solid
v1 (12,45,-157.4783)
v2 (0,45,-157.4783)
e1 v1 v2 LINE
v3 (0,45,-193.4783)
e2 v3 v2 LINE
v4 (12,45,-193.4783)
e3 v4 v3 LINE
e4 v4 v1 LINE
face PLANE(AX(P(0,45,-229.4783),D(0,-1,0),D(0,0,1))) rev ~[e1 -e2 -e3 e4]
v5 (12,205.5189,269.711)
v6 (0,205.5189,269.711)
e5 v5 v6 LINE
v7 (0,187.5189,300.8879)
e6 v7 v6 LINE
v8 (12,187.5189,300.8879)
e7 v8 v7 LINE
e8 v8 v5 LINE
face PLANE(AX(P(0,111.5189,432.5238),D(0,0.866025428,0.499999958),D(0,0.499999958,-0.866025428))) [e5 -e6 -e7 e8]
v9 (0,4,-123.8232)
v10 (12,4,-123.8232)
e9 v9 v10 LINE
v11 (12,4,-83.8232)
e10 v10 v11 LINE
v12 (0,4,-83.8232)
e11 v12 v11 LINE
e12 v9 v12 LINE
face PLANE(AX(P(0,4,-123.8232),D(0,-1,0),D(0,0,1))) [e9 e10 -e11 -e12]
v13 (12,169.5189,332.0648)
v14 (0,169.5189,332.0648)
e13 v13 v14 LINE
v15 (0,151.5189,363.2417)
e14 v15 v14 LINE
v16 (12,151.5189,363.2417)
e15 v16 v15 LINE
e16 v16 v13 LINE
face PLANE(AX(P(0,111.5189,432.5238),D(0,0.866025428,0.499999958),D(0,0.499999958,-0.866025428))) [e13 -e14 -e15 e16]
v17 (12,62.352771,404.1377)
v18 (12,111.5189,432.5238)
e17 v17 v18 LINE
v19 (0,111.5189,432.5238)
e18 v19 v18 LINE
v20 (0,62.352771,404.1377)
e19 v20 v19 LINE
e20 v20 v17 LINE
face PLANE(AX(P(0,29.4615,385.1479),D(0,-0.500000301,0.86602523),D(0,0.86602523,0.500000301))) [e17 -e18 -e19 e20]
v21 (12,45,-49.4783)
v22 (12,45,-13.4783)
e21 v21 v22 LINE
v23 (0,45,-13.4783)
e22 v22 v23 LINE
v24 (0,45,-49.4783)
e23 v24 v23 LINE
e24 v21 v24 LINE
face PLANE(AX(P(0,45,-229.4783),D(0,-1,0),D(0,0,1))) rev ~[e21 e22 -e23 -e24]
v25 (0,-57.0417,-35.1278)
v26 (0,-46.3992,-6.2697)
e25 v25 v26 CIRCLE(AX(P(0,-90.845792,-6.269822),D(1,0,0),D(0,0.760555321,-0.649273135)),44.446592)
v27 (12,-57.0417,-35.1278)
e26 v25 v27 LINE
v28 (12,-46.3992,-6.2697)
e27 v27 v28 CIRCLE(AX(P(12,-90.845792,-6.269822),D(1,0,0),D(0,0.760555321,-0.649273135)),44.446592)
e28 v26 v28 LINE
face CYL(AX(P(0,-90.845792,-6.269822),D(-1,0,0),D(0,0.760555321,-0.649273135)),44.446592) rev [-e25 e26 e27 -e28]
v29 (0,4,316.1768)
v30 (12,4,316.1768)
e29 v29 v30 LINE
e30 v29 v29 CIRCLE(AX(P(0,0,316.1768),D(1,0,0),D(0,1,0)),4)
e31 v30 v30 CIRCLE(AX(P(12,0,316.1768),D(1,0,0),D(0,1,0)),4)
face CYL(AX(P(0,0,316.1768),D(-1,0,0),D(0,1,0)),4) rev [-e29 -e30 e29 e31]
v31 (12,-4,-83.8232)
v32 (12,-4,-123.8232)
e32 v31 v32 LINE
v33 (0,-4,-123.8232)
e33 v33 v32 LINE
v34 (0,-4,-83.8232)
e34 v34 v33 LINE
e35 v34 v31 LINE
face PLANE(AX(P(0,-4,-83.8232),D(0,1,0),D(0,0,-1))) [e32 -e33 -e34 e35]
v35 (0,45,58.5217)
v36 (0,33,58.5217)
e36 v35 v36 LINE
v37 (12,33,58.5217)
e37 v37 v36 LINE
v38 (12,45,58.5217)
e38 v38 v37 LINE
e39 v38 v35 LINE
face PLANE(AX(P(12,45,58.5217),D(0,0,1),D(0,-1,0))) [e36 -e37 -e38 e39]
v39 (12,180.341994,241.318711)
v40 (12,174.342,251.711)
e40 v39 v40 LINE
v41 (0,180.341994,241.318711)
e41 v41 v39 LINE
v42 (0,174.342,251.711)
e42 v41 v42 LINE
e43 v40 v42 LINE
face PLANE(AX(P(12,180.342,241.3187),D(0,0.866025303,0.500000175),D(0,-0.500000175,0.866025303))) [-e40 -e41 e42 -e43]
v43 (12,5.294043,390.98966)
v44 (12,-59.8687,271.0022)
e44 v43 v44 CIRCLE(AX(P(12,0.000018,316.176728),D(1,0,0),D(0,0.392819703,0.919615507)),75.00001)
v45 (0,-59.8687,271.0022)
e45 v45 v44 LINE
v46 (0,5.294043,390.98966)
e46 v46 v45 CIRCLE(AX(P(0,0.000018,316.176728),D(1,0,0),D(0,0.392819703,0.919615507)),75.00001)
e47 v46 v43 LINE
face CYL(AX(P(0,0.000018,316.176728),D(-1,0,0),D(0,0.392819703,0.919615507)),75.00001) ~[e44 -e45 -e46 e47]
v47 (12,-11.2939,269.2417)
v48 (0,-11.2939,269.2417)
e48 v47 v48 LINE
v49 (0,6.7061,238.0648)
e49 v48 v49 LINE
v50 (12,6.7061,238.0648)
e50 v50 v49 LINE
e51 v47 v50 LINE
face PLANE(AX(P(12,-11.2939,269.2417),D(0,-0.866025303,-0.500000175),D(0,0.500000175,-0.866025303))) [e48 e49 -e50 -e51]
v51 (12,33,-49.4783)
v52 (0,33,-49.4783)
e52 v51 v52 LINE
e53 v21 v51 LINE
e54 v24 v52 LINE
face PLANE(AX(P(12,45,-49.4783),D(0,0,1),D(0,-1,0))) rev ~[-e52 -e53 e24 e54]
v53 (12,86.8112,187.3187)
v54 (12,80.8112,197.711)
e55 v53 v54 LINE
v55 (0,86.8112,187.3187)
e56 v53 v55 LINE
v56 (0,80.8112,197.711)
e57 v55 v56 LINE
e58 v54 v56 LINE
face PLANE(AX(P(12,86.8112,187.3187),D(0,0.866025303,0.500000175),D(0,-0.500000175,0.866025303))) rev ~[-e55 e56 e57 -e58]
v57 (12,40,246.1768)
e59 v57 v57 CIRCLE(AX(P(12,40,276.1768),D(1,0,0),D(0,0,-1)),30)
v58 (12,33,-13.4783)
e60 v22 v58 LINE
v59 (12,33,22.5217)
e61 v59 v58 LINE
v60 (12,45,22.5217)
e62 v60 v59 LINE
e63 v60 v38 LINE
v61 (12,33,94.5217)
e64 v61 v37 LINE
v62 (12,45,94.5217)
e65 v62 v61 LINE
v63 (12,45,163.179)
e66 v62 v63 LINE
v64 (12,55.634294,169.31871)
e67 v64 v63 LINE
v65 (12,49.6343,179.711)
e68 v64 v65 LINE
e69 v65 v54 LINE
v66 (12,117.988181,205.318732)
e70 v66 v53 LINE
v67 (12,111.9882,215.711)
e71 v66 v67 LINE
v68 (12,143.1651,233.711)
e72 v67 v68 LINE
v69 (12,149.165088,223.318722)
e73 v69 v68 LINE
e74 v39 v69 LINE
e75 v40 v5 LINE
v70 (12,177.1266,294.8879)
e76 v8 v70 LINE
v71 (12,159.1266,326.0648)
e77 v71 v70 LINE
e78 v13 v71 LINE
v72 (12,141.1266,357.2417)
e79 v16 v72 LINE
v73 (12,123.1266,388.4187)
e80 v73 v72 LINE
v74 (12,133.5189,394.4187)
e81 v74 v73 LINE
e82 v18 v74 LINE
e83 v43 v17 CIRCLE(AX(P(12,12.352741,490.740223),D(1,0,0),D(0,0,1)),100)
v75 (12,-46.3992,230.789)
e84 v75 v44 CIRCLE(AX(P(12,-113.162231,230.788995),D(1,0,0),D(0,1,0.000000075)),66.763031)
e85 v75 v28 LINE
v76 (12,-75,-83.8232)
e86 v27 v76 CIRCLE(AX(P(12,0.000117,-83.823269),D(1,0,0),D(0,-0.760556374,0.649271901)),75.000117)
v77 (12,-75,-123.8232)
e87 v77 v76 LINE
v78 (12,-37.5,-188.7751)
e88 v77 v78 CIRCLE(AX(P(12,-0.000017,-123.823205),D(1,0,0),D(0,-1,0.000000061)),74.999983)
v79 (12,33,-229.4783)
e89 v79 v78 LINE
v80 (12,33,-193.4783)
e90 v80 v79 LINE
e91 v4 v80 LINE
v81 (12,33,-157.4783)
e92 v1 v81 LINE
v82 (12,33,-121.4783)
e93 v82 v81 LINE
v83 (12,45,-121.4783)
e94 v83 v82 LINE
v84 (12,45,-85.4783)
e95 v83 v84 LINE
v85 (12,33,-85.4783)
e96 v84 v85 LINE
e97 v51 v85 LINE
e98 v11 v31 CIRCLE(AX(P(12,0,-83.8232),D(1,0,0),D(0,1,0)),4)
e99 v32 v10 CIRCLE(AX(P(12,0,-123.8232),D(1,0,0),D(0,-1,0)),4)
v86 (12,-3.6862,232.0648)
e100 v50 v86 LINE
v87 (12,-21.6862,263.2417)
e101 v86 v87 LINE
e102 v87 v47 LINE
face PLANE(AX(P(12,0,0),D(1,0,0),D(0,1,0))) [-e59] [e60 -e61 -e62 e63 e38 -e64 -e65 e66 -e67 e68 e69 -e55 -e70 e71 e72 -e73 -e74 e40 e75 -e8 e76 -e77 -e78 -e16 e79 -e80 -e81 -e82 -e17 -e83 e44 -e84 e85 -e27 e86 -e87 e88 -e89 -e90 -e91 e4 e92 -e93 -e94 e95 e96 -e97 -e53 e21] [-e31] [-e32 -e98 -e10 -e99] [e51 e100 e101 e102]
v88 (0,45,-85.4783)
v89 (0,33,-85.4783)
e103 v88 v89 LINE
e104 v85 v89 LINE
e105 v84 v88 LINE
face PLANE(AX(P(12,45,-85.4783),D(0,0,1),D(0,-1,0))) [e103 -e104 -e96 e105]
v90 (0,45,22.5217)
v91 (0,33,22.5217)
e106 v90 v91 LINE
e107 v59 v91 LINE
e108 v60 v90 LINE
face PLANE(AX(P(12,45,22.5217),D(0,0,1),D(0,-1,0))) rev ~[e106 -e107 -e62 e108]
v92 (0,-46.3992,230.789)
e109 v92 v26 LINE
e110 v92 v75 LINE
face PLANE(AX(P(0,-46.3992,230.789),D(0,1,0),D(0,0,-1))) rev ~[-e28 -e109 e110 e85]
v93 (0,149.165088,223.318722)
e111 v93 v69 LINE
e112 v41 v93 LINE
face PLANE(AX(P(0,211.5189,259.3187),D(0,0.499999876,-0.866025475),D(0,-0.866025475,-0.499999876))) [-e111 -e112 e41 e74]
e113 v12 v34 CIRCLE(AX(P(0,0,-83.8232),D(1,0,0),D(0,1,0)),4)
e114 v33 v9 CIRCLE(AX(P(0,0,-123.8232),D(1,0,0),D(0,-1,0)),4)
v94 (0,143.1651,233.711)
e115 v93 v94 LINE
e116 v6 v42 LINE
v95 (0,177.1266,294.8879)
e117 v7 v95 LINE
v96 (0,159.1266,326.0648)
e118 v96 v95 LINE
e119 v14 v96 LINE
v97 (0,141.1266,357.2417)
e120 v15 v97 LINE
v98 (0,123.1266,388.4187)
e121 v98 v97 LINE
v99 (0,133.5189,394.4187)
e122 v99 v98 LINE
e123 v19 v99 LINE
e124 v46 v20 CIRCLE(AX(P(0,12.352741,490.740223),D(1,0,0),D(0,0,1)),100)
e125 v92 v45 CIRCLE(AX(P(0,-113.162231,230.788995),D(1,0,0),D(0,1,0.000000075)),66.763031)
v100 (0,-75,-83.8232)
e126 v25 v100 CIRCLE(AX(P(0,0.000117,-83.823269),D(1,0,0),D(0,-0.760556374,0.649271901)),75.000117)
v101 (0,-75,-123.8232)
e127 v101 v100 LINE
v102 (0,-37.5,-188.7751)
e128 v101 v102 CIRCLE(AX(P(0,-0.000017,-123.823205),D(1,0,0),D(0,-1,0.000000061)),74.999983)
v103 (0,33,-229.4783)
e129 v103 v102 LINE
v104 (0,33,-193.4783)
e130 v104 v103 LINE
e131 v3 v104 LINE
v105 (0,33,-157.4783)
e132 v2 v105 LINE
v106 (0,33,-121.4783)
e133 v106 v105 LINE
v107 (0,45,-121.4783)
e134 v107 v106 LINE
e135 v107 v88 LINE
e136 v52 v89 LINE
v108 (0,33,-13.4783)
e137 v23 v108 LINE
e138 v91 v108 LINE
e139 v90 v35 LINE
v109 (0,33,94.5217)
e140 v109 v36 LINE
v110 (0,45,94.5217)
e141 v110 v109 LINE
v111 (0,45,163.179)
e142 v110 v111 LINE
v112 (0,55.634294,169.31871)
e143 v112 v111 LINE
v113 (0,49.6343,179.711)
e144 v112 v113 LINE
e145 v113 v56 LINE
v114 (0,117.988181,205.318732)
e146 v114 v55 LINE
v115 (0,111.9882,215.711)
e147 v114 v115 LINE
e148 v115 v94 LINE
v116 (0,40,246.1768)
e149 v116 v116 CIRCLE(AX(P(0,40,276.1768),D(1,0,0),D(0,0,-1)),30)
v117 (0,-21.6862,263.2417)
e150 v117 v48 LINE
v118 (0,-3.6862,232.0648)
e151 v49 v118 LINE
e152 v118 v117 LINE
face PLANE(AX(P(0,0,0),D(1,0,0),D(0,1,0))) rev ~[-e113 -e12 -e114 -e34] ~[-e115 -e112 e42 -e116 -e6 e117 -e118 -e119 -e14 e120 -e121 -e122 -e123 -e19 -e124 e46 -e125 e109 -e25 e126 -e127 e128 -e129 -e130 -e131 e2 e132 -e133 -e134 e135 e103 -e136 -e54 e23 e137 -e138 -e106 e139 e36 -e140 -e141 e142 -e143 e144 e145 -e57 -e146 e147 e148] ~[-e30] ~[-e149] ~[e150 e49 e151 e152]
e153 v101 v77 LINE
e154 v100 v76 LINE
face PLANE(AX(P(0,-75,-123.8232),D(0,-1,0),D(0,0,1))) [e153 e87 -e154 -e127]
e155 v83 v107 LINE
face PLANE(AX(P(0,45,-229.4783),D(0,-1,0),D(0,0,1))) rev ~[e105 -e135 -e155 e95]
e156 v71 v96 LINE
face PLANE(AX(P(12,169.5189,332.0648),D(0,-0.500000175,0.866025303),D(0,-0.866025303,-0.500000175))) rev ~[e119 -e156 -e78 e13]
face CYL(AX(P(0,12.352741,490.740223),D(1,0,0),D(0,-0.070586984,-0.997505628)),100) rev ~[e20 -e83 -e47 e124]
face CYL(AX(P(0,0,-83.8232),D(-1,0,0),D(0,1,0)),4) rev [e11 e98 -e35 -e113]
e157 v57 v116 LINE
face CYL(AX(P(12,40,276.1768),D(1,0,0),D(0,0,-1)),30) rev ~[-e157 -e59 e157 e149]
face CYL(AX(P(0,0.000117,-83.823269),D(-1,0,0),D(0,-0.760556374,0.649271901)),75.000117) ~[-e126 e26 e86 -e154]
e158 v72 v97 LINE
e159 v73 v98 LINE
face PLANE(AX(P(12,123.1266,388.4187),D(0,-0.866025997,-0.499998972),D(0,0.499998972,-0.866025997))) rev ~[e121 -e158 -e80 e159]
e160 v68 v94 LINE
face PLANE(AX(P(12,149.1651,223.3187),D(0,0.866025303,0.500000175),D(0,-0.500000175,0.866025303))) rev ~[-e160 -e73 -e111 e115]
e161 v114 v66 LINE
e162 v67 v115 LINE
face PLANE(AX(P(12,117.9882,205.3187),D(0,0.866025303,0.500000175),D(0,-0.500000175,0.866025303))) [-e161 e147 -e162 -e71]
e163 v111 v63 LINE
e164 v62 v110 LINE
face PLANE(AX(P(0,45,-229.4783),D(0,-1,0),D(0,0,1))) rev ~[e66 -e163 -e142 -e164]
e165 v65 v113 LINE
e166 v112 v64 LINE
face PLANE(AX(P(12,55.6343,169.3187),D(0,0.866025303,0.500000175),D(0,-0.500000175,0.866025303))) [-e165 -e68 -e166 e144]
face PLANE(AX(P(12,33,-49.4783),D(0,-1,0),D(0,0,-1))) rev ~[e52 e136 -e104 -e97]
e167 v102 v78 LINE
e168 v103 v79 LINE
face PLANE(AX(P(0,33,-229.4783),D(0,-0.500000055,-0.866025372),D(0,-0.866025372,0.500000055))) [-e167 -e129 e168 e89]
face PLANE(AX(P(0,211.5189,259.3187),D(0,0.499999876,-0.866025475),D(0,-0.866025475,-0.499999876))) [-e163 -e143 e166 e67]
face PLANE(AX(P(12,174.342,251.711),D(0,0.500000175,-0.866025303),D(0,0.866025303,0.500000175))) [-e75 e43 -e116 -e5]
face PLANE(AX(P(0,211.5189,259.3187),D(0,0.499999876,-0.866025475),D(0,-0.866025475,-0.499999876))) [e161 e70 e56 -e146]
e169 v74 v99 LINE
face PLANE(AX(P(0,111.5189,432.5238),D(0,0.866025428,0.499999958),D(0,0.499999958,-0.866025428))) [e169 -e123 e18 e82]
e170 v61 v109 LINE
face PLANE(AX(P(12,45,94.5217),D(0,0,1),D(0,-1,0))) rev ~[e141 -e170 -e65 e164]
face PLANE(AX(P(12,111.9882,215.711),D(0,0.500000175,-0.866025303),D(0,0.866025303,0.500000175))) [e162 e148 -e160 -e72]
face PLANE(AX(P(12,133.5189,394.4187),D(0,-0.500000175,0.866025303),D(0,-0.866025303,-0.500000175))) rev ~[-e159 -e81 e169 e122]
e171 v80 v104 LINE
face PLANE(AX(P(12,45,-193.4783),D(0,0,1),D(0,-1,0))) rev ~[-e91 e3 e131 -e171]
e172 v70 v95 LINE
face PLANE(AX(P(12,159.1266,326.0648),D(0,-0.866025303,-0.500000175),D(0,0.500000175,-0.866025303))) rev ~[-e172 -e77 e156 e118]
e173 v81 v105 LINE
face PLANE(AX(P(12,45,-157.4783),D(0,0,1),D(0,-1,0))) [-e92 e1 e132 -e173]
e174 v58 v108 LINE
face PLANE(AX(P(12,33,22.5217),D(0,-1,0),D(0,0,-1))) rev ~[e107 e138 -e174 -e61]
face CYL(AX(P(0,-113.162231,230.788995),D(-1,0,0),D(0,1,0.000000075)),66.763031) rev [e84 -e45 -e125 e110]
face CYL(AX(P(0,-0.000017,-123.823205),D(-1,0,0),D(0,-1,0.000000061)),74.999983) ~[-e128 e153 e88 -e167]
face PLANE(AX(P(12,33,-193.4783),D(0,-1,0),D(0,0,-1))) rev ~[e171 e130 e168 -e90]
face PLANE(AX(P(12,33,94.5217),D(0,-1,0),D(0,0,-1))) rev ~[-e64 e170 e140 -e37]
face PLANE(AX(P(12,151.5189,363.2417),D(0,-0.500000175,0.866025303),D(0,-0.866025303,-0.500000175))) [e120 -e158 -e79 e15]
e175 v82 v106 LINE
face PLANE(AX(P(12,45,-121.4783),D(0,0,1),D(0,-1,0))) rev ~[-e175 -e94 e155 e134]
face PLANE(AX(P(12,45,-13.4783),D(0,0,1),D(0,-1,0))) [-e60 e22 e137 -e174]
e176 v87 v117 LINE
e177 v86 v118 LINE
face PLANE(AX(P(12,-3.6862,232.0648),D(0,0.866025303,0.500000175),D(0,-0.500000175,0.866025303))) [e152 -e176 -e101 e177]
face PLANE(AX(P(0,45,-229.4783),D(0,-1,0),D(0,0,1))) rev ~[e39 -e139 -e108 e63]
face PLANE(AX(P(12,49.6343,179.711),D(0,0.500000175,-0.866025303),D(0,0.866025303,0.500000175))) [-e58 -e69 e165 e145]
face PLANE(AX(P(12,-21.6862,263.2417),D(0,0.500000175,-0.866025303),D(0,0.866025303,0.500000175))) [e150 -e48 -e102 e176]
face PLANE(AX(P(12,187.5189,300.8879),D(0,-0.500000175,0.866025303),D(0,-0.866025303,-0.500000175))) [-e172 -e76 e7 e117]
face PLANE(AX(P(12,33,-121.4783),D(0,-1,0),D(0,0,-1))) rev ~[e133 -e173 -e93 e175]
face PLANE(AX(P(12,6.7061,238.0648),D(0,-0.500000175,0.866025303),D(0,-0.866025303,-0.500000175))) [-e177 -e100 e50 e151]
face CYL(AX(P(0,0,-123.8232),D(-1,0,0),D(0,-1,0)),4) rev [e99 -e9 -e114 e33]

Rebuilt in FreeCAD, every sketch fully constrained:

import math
import FreeCAD as App
import Part
import Sketcher
Q = App.Units.Quantity


def edges_at(feature, points):
    """Names of the edges that pass closest to the given points."""
    edges = feature.Shape.Edges
    near = lambda p: min(range(len(edges)), key=lambda i: edges[i].distToShape(Part.Vertex(*p))[0])
    return sorted({f"Edge{near(p) + 1}" for p in points})

doc = App.newDocument("Part")
body = doc.addObject("PartDesign::Body", "Body")

# Sketch on YZ plane
sketch1 = body.newObject("Sketcher::SketchObject", "Sketch")
sketch1.AttachmentSupport = (doc.getObject("YZ_Plane"), [""])
sketch1.MapMode = "FlatFace"
sketch1.addGeometry([
    Part.LineSegment(App.Vector(211.5189, 259.3187, 0), App.Vector(111.5189, 432.5238, 0)),  # 0
    Part.LineSegment(App.Vector(111.5189, 432.5238, 0), App.Vector(29.4615, 385.1479, 0)),  # 1
    Part.ArcOfCircle(Part.Circle(App.Vector(0, 316.1768, 0), App.Vector(0, 0, 1), 74.999951), math.radians(66.869902), math.radians(217.036789)),  # 2
    Part.ArcOfCircle(Part.Circle(App.Vector(-113.1622, 230.789, 0), App.Vector(0, 0, 1), 66.763), math.radians(0), math.radians(37.036783)),  # 3
    Part.LineSegment(App.Vector(-46.3992, 230.789, 0), App.Vector(-46.3992, -6.2697, 0)),  # 4
    Part.ArcOfCircle(Part.Circle(App.Vector(-90.846, -6.2697, 0), App.Vector(0, 0, 1), 44.446829), math.radians(-40.486767), math.radians(0)),  # 5
    Part.ArcOfCircle(Part.Circle(App.Vector(0, -83.8232, 0), App.Vector(0, 0, 1), 75), math.radians(139.513253), math.radians(180)),  # 6
    Part.LineSegment(App.Vector(-75, -83.8232, 0), App.Vector(-75, -123.8232, 0)),  # 7
    Part.ArcOfCircle(Part.Circle(App.Vector(0, -123.8232, 0), App.Vector(0, 0, 1), 75), math.radians(180), math.radians(239.999998)),  # 8
    Part.LineSegment(App.Vector(-37.5, -188.7751, 0), App.Vector(33, -229.4783, 0)),  # 9
    Part.LineSegment(App.Vector(33, -229.4783, 0), App.Vector(45, -229.4783, 0)),  # 10
    Part.LineSegment(App.Vector(45, -229.4783, 0), App.Vector(45, 163.179, 0)),  # 11
    Part.LineSegment(App.Vector(45, 163.179, 0), App.Vector(211.5189, 259.3187, 0)),  # 12
    Part.LineSegment(App.Vector(-4, -123.8232, 0), App.Vector(-4, -83.8232, 0)),  # 13
    Part.ArcOfCircle(Part.Circle(App.Vector(0, -83.8232, 0), App.Vector(0, 0, 1), 4), math.radians(0), math.radians(180)),  # 14
    Part.LineSegment(App.Vector(4, -83.8232, 0), App.Vector(4, -123.8232, 0)),  # 15
    Part.ArcOfCircle(Part.Circle(App.Vector(0, -123.8232, 0), App.Vector(0, 0, 1), 4), math.radians(180), math.radians(360)),  # 16
    Part.Circle(App.Vector(0, 316.1768, 0), App.Vector(0, 0, 1), 4),  # 17
], False)
sketch1.addConstraint([
    Sketcher.Constraint("Coincident", 0, 2, 1, 1),
    Sketcher.Constraint("Coincident", 1, 2, 2, 1),
    Sketcher.Constraint("Tangent", 2, 2, 3, 2),
    Sketcher.Constraint("Tangent", 3, 1, 4, 1),
    Sketcher.Constraint("Tangent", 4, 2, 5, 2),
    Sketcher.Constraint("Tangent", 5, 1, 6, 1),
    Sketcher.Constraint("Tangent", 6, 2, 7, 1),
    Sketcher.Constraint("Tangent", 7, 2, 8, 1),
    Sketcher.Constraint("Tangent", 8, 2, 9, 1),
    Sketcher.Constraint("Coincident", 9, 2, 10, 1),
    Sketcher.Constraint("Coincident", 10, 2, 11, 1),
    Sketcher.Constraint("Coincident", 11, 2, 12, 1),
    Sketcher.Constraint("Coincident", 12, 2, 0, 1),
    Sketcher.Constraint("Tangent", 13, 2, 14, 2),
    Sketcher.Constraint("Tangent", 14, 1, 15, 1),
    Sketcher.Constraint("Tangent", 15, 2, 16, 2),
    Sketcher.Constraint("Tangent", 16, 1, 13, 1),
    Sketcher.Constraint("Vertical", 4),
    Sketcher.Constraint("Vertical", 7),
    Sketcher.Constraint("Horizontal", 10),
    Sketcher.Constraint("Vertical", 11),
    Sketcher.Constraint("Vertical", 13),
    Sketcher.Constraint("Vertical", 15),
    Sketcher.Constraint("Coincident", 14, 3, 6, 3),
    Sketcher.Constraint("Coincident", 16, 3, 8, 3),
    Sketcher.Constraint("Coincident", 17, 3, 2, 3),
    Sketcher.Constraint("Equal", 2, 6),
    Sketcher.Constraint("Equal", 16, 17),
    Sketcher.Constraint("PointOnObject", 2, 3, -2),
    Sketcher.Constraint("PointOnObject", 6, 3, -2),
    Sketcher.Constraint("Perpendicular", 0, 1),
    Sketcher.Constraint("Parallel", 1, 12),
    Sketcher.Constraint("Diameter", 17, 8.0),
    Sketcher.Constraint("Radius", 2, 75.0),
    Sketcher.Constraint("DistanceX", 10, 1, 10, 2, 12.0),
    Sketcher.Constraint("DistanceY", 7, 2, 7, 1, 40.0),
    Sketcher.Constraint("Angle", 0, Q("120 deg")),
    Sketcher.Constraint("Distance", 0, 200.0),
    Sketcher.Constraint("DistanceY", 6, 3, 2, 3, 400.0),
    Sketcher.Constraint("Angle", 9, Q("-30 deg")),
    Sketcher.Constraint("DistanceX", -1, 1, 9, 2, 33.0),
    Sketcher.Constraint("Radius", 3, 66.763),
    Sketcher.Constraint("Radius", 5, 44.4468),
    Sketcher.Constraint("DistanceY", 11, 2, 3, 1, 67.61),
    Sketcher.Constraint("DistanceY", 4, 2, 4, 1, 237.0587),
    Sketcher.Constraint("DistanceY", -1, 1, 3, 3, 230.789),
    Sketcher.Constraint("DistanceX", -1, 1, 0, 2, 111.519),
])
pad1 = body.newObject("PartDesign::Pad", "Pad")
pad1.Profile = sketch1
pad1.Length = 12
doc.recompute()

fillet = body.newObject("PartDesign::Fillet", "Fillet")
fillet.Base = (pad1, edges_at(pad1, [(6, 29.462, 385.148)]))
fillet.Radius = 100

# Sketch on YZ plane
sketch2 = body.newObject("Sketcher::SketchObject", "Sketch001")
sketch2.AttachmentSupport = (doc.getObject("YZ_Plane"), [""])
sketch2.MapMode = "FlatFace"
sketch2.AttachmentOffset = App.Placement(App.Vector(0, 0, 12), App.Rotation())
sketch2.addGeometry([
    Part.LineSegment(App.Vector(33, -229.4783, 0), App.Vector(45, -229.4783, 0)),  # 0
    Part.LineSegment(App.Vector(45, -229.4783, 0), App.Vector(45, -193.4783, 0)),  # 1
    Part.LineSegment(App.Vector(45, -193.4783, 0), App.Vector(33, -193.4783, 0)),  # 2
    Part.LineSegment(App.Vector(33, -193.4783, 0), App.Vector(33, -229.4783, 0)),  # 3
    Part.LineSegment(App.Vector(33, -157.4783, 0), App.Vector(45, -157.4783, 0)),  # 4
    Part.LineSegment(App.Vector(45, -157.4783, 0), App.Vector(45, -121.4783, 0)),  # 5
    Part.LineSegment(App.Vector(45, -121.4783, 0), App.Vector(33, -121.4783, 0)),  # 6
    Part.LineSegment(App.Vector(33, -121.4783, 0), App.Vector(33, -157.4783, 0)),  # 7
    Part.LineSegment(App.Vector(33, -85.4783, 0), App.Vector(45, -85.4783, 0)),  # 8
    Part.LineSegment(App.Vector(45, -85.4783, 0), App.Vector(45, -49.4783, 0)),  # 9
    Part.LineSegment(App.Vector(45, -49.4783, 0), App.Vector(33, -49.4783, 0)),  # 10
    Part.LineSegment(App.Vector(33, -49.4783, 0), App.Vector(33, -85.4783, 0)),  # 11
    Part.LineSegment(App.Vector(33, -13.4783, 0), App.Vector(45, -13.4783, 0)),  # 12
    Part.LineSegment(App.Vector(45, -13.4783, 0), App.Vector(45, 22.5217, 0)),  # 13
    Part.LineSegment(App.Vector(45, 22.5217, 0), App.Vector(33, 22.5217, 0)),  # 14
    Part.LineSegment(App.Vector(33, 22.5217, 0), App.Vector(33, -13.4783, 0)),  # 15
    Part.LineSegment(App.Vector(33, 58.5217, 0), App.Vector(45, 58.5217, 0)),  # 16
    Part.LineSegment(App.Vector(45, 58.5217, 0), App.Vector(45, 94.5217, 0)),  # 17
    Part.LineSegment(App.Vector(45, 94.5217, 0), App.Vector(33, 94.5217, 0)),  # 18
    Part.LineSegment(App.Vector(33, 94.5217, 0), App.Vector(33, 58.5217, 0)),  # 19
    Part.LineSegment(App.Vector(180.342, 241.3187, 0), App.Vector(211.5189, 259.3187, 0)),  # 20
    Part.LineSegment(App.Vector(211.5189, 259.3187, 0), App.Vector(205.5189, 269.711, 0)),  # 21
    Part.LineSegment(App.Vector(205.5189, 269.711, 0), App.Vector(174.342, 251.711, 0)),  # 22
    Part.LineSegment(App.Vector(174.342, 251.711, 0), App.Vector(180.342, 241.3187, 0)),  # 23
    Part.LineSegment(App.Vector(117.9882, 205.3187, 0), App.Vector(149.1651, 223.3187, 0)),  # 24
    Part.LineSegment(App.Vector(149.1651, 223.3187, 0), App.Vector(143.1651, 233.711, 0)),  # 25
    Part.LineSegment(App.Vector(143.1651, 233.711, 0), App.Vector(111.9882, 215.711, 0)),  # 26
    Part.LineSegment(App.Vector(111.9882, 215.711, 0), App.Vector(117.9882, 205.3187, 0)),  # 27
    Part.LineSegment(App.Vector(177.1266, 294.8879, 0), App.Vector(187.5189, 300.8879, 0)),  # 28
    Part.LineSegment(App.Vector(187.51891, 300.887906, 0), App.Vector(169.518918, 332.064811, 0)),  # 29
    Part.LineSegment(App.Vector(169.5189, 332.0648, 0), App.Vector(159.1266, 326.0648, 0)),  # 30
    Part.LineSegment(App.Vector(159.1266, 326.0648, 0), App.Vector(177.1266, 294.8879, 0)),  # 31
    Part.LineSegment(App.Vector(55.6343, 169.3187, 0), App.Vector(86.8112, 187.3187, 0)),  # 32
    Part.LineSegment(App.Vector(86.8112, 187.3187, 0), App.Vector(80.8112, 197.711, 0)),  # 33
    Part.LineSegment(App.Vector(80.8112, 197.711, 0), App.Vector(49.6343, 179.711, 0)),  # 34
    Part.LineSegment(App.Vector(49.6343, 179.711, 0), App.Vector(55.6343, 169.3187, 0)),  # 35
    Part.LineSegment(App.Vector(141.1266, 357.2417, 0), App.Vector(151.5189, 363.2417, 0)),  # 36
    Part.LineSegment(App.Vector(151.518926, 363.241715, 0), App.Vector(133.51889, 394.418695, 0)),  # 37
    Part.LineSegment(App.Vector(133.5189, 394.4187, 0), App.Vector(123.1266, 388.4187, 0)),  # 38
    Part.LineSegment(App.Vector(123.1266, 388.4187, 0), App.Vector(141.1266, 357.2417, 0)),  # 39
    Part.LineSegment(App.Vector(-21.6862, 263.2417, 0), App.Vector(-3.6862, 232.0648, 0)),  # 40
    Part.LineSegment(App.Vector(-3.6862, 232.0648, 0), App.Vector(6.7061, 238.0648, 0)),  # 41
    Part.LineSegment(App.Vector(6.7061, 238.0648, 0), App.Vector(-11.2939, 269.2417, 0)),  # 42
    Part.LineSegment(App.Vector(-11.2939, 269.2417, 0), App.Vector(-21.6862, 263.2417, 0)),  # 43
    Part.Circle(App.Vector(40, 276.1768, 0), App.Vector(0, 0, 1), 30),  # 44
], False)
sketch2.addConstraint([
    Sketcher.Constraint("Coincident", 0, 2, 1, 1),
    Sketcher.Constraint("Coincident", 1, 2, 2, 1),
    Sketcher.Constraint("Coincident", 2, 2, 3, 1),
    Sketcher.Constraint("Coincident", 3, 2, 0, 1),
    Sketcher.Constraint("Coincident", 4, 2, 5, 1),
    Sketcher.Constraint("Coincident", 5, 2, 6, 1),
    Sketcher.Constraint("Coincident", 6, 2, 7, 1),
    Sketcher.Constraint("Coincident", 7, 2, 4, 1),
    Sketcher.Constraint("Coincident", 8, 2, 9, 1),
    Sketcher.Constraint("Coincident", 9, 2, 10, 1),
    Sketcher.Constraint("Coincident", 10, 2, 11, 1),
    Sketcher.Constraint("Coincident", 11, 2, 8, 1),
    Sketcher.Constraint("Coincident", 12, 2, 13, 1),
    Sketcher.Constraint("Coincident", 13, 2, 14, 1),
    Sketcher.Constraint("Coincident", 14, 2, 15, 1),
    Sketcher.Constraint("Coincident", 15, 2, 12, 1),
    Sketcher.Constraint("Coincident", 16, 2, 17, 1),
    Sketcher.Constraint("Coincident", 17, 2, 18, 1),
    Sketcher.Constraint("Coincident", 18, 2, 19, 1),
    Sketcher.Constraint("Coincident", 19, 2, 16, 1),
    Sketcher.Constraint("Coincident", 20, 2, 21, 1),
    Sketcher.Constraint("Coincident", 21, 2, 22, 1),
    Sketcher.Constraint("Coincident", 22, 2, 23, 1),
    Sketcher.Constraint("Coincident", 23, 2, 20, 1),
    Sketcher.Constraint("Coincident", 24, 2, 25, 1),
    Sketcher.Constraint("Coincident", 25, 2, 26, 1),
    Sketcher.Constraint("Coincident", 26, 2, 27, 1),
    Sketcher.Constraint("Coincident", 27, 2, 24, 1),
    Sketcher.Constraint("Coincident", 28, 2, 29, 1),
    Sketcher.Constraint("Coincident", 29, 2, 30, 1),
    Sketcher.Constraint("Coincident", 30, 2, 31, 1),
    Sketcher.Constraint("Coincident", 31, 2, 28, 1),
    Sketcher.Constraint("Coincident", 32, 2, 33, 1),
    Sketcher.Constraint("Coincident", 33, 2, 34, 1),
    Sketcher.Constraint("Coincident", 34, 2, 35, 1),
    Sketcher.Constraint("Coincident", 35, 2, 32, 1),
    Sketcher.Constraint("Coincident", 36, 2, 37, 1),
    Sketcher.Constraint("Coincident", 37, 2, 38, 1),
    Sketcher.Constraint("Coincident", 38, 2, 39, 1),
    Sketcher.Constraint("Coincident", 39, 2, 36, 1),
    Sketcher.Constraint("Coincident", 40, 2, 41, 1),
    Sketcher.Constraint("Coincident", 41, 2, 42, 1),
    Sketcher.Constraint("Coincident", 42, 2, 43, 1),
    Sketcher.Constraint("Coincident", 43, 2, 40, 1),
    Sketcher.Constraint("Horizontal", 0),
    Sketcher.Constraint("Vertical", 1),
    Sketcher.Constraint("Horizontal", 2),
    Sketcher.Constraint("Vertical", 3),
    Sketcher.Constraint("Horizontal", 4),
    Sketcher.Constraint("Vertical", 5),
    Sketcher.Constraint("Horizontal", 6),
    Sketcher.Constraint("Vertical", 7),
    Sketcher.Constraint("Horizontal", 8),
    Sketcher.Constraint("Vertical", 9),
    Sketcher.Constraint("Horizontal", 10),
    Sketcher.Constraint("Vertical", 11),
    Sketcher.Constraint("Horizontal", 12),
    Sketcher.Constraint("Vertical", 13),
    Sketcher.Constraint("Horizontal", 14),
    Sketcher.Constraint("Vertical", 15),
    Sketcher.Constraint("Horizontal", 16),
    Sketcher.Constraint("Vertical", 17),
    Sketcher.Constraint("Horizontal", 18),
    Sketcher.Constraint("Vertical", 19),
    Sketcher.Constraint("Perpendicular", 20, 21),
    Sketcher.Constraint("Perpendicular", 21, 22),
    Sketcher.Constraint("Perpendicular", 22, 23),
    Sketcher.Constraint("Perpendicular", 23, 24),
    Sketcher.Constraint("Perpendicular", 24, 25),
    Sketcher.Constraint("Perpendicular", 25, 26),
    Sketcher.Constraint("Perpendicular", 26, 27),
    Sketcher.Constraint("Perpendicular", 27, 28),
    Sketcher.Constraint("Perpendicular", 28, 29),
    Sketcher.Constraint("Perpendicular", 29, 30),
    Sketcher.Constraint("Perpendicular", 30, 31),
    Sketcher.Constraint("Perpendicular", 31, 32),
    Sketcher.Constraint("Perpendicular", 32, 33),
    Sketcher.Constraint("Perpendicular", 33, 34),
    Sketcher.Constraint("Perpendicular", 34, 35),
    Sketcher.Constraint("Perpendicular", 35, 36),
    Sketcher.Constraint("Perpendicular", 36, 37),
    Sketcher.Constraint("Perpendicular", 37, 38),
    Sketcher.Constraint("Perpendicular", 38, 39),
    Sketcher.Constraint("Parallel", 39, 40),
    Sketcher.Constraint("Perpendicular", 40, 41),
    Sketcher.Constraint("Perpendicular", 41, 42),
    Sketcher.Constraint("Perpendicular", 42, 43),
    Sketcher.Constraint("Vertical", 1, 2, 4, 2),
    Sketcher.Constraint("Vertical", 3, 2, 6, 2),
    Sketcher.Constraint("Vertical", 5, 2, 8, 2),
    Sketcher.Constraint("Vertical", 7, 2, 10, 2),
    Sketcher.Constraint("Vertical", 9, 2, 12, 2),
    Sketcher.Constraint("Vertical", 11, 2, 14, 2),
    Sketcher.Constraint("Vertical", 13, 2, 16, 2),
    Sketcher.Constraint("Vertical", 15, 2, 18, 2),
    Sketcher.Constraint("Equal", 3, 5),
    Sketcher.Constraint("Equal", 7, 9),
    Sketcher.Constraint("Equal", 11, 13),
    Sketcher.Constraint("Equal", 15, 17),
    Sketcher.Constraint("Equal", 22, 24),
    Sketcher.Constraint("Equal", 23, 25),
    Sketcher.Constraint("Equal", 27, 28),
    Sketcher.Constraint("Equal", 26, 29),
    Sketcher.Constraint("Equal", 31, 32),
    Sketcher.Constraint("Equal", 30, 33),
    Sketcher.Constraint("Equal", 35, 36),
    Sketcher.Constraint("Equal", 34, 37),
    Sketcher.Constraint("Equal", 39, 40),
    Sketcher.Constraint("Equal", 38, 41),
    Sketcher.Constraint("Diameter", 44, 60.0),
    Sketcher.Constraint("DistanceX", 0, 1, 0, 2, 12.0),
    Sketcher.Constraint("DistanceY", 1, 1, 1, 2, 36.0),
    Sketcher.Constraint("Angle", 23, Q("-60 deg")),
    Sketcher.Constraint("Distance", 20, 36.0),
    Sketcher.Constraint("Distance", 21, 12.0),
    Sketcher.Constraint("DistanceX", -1, 1, 44, 3, 40.0),
    Sketcher.Constraint("DistanceY", 1, 2, 4, 2, 36.0),
    Sketcher.Constraint("DistanceY", 5, 2, 8, 2, 36.0),
    Sketcher.Constraint("DistanceY", 9, 2, 12, 2, 36.0),
    Sketcher.Constraint("DistanceY", 13, 2, 16, 2, 36.0),
    Sketcher.Constraint("DistanceY", 24, 2, 20, 2, 36.0),
    Sketcher.Constraint("DistanceX", 29, 2, 21, 2, 36.0),
    Sketcher.Constraint("DistanceY", 32, 2, 24, 2, 36.0),
    Sketcher.Constraint("DistanceX", 36, 2, 28, 2, 36.0),
    Sketcher.Constraint("DistanceX", -1, 1, 0, 2, 45.0),
    Sketcher.Constraint("DistanceX", -1, 1, 20, 2, 211.519),
    Sketcher.Constraint("DistanceY", -1, 1, 21, 2, 269.711),
    Sketcher.Constraint("DistanceX", -1, 1, 24, 2, 149.165),
    Sketcher.Constraint("DistanceY", -1, 1, 28, 2, 300.888),
    Sketcher.Constraint("DistanceX", -1, 1, 41, 2, 6.706),
    Sketcher.Constraint("DistanceY", 0, 2, 44, 3, 505.655),
    Sketcher.Constraint("DistanceY", 20, 2, 44, 3, 16.858),
    Sketcher.Constraint("DistanceX", 32, 2, 27, 2, 31.177),
    Sketcher.Constraint("DistanceY", 29, 2, 36, 2, 31.177),
    Sketcher.Constraint("DistanceY", 40, 2, 44, 3, 44.112),
])
pocket1 = body.newObject("PartDesign::Pocket", "Pocket")
pocket1.Profile = sketch2
pocket1.Length = 12

doc.recompute()
